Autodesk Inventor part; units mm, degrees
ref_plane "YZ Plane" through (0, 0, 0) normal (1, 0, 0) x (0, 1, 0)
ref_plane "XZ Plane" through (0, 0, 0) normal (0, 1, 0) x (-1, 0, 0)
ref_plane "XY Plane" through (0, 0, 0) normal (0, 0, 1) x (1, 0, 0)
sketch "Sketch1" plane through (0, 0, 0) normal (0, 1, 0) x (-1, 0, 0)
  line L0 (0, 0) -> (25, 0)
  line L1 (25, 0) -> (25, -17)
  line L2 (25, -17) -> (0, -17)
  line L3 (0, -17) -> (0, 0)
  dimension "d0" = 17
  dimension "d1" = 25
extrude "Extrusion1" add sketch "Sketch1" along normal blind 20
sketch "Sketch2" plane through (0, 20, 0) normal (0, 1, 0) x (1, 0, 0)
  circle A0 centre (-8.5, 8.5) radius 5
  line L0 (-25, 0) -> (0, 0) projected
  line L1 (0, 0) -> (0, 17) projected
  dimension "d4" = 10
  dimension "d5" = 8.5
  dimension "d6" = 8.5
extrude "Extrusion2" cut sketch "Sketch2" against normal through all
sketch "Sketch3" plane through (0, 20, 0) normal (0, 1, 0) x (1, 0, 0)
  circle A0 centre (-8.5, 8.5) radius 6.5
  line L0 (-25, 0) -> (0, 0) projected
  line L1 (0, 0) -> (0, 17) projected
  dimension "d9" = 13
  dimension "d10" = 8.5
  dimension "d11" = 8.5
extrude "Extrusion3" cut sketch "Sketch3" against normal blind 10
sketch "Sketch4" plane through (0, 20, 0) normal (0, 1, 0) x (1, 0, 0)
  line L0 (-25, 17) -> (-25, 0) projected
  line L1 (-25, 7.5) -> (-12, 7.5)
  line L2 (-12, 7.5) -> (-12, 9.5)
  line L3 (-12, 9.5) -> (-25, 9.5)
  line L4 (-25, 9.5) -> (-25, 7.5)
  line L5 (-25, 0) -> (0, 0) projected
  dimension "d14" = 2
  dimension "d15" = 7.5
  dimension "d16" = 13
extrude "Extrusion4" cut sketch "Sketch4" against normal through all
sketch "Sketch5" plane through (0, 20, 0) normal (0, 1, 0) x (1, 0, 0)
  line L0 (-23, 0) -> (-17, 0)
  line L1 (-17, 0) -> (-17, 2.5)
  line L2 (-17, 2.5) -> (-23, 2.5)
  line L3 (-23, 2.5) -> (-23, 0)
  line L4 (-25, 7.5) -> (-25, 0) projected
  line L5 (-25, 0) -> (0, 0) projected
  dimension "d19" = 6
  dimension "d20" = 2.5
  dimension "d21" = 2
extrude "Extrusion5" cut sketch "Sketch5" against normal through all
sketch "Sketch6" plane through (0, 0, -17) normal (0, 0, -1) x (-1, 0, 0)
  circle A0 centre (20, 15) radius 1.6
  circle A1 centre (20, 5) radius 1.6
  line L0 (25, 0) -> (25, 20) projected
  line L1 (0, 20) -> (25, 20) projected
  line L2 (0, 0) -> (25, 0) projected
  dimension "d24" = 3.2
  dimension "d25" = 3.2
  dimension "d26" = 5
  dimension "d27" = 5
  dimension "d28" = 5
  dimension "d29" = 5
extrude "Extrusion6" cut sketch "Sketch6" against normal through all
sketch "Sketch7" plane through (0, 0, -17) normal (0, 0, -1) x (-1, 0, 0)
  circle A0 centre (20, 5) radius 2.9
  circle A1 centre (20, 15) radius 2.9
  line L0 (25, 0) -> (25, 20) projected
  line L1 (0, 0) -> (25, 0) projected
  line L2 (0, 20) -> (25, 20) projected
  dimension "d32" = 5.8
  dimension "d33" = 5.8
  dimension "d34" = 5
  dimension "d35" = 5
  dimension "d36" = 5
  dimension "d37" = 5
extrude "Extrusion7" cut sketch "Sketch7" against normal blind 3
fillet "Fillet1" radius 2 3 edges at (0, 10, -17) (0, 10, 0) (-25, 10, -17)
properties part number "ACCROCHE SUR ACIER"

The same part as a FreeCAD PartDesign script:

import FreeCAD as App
import Part
import Sketcher
Q = App.Units.Quantity


def edges_at(feature, points):
    """Names of the edges that pass closest to the given points."""
    edges = feature.Shape.Edges
    near = lambda p: min(range(len(edges)), key=lambda i: edges[i].distToShape(Part.Vertex(*p))[0])
    return sorted({f"Edge{near(p) + 1}" for p in points})

doc = App.newDocument("Part")
body = doc.addObject("PartDesign::Body", "Body")

sketch1 = doc.addObject("Sketcher::SketchObject", "Sketch")
body.addObject(sketch1)
sketch1.AttachmentSupport = (doc.XZ_Plane, [""])
sketch1.MapMode = "FlatFace"
sketch1.addGeometry(Part.LineSegment(App.Vector(-25, 0, 0), App.Vector(0, 0, 0)), False)
sketch1.addGeometry(Part.LineSegment(App.Vector(0, 0, 0), App.Vector(0, -17, 0)), False)
sketch1.addGeometry(Part.LineSegment(App.Vector(0, -17, 0), App.Vector(-25, -17, 0)), False)
sketch1.addGeometry(Part.LineSegment(App.Vector(-25, -17, 0), App.Vector(-25, 0, 0)), False)
sketch1.addConstraint(Sketcher.Constraint("Coincident", 0, 2, 1, 1))
sketch1.addConstraint(Sketcher.Constraint("Coincident", 1, 2, 2, 1))
sketch1.addConstraint(Sketcher.Constraint("Coincident", 2, 2, 3, 1))
sketch1.addConstraint(Sketcher.Constraint("Coincident", 3, 2, 0, 1))
sketch1.addConstraint(Sketcher.Constraint("Horizontal", 0))
sketch1.addConstraint(Sketcher.Constraint("Vertical", 1))
sketch1.addConstraint(Sketcher.Constraint("Horizontal", 2))
sketch1.addConstraint(Sketcher.Constraint("Vertical", 3))
sketch1.addConstraint(Sketcher.Constraint("Coincident", 0, 2, -1, 1))
sketch1.addConstraint(Sketcher.Constraint("DistanceX", 0, 1, 0, 2, Q("25 mm")))
sketch1.addConstraint(Sketcher.Constraint("DistanceY", 1, 2, 1, 1, Q("17 mm")))
pad1 = doc.addObject("PartDesign::Pad", "Pad")
body.addObject(pad1)
pad1.Profile = sketch1
pad1.Length = 20
pad1.Reversed = True

sketch2 = doc.addObject("Sketcher::SketchObject", "Sketch001")
body.addObject(sketch2)
sketch2.AttachmentSupport = (doc.XZ_Plane, [""])
sketch2.MapMode = "FlatFace"
sketch2.AttachmentOffset = App.Placement(App.Vector(0, 0, -20), App.Rotation())
sketch2.addGeometry(Part.Circle(App.Vector(-8, -8, 0), App.Vector(0, 0, 1), 5), False)
sketch2.addConstraint(Sketcher.Constraint("Diameter", 0, Q("10 mm")))
sketch2.addConstraint(Sketcher.Constraint("DistanceX", 0, 3, -1, 1, Q("8.5 mm")))
sketch2.addConstraint(Sketcher.Constraint("DistanceY", 0, 3, -1, 1, Q("8.5 mm")))
pocket1 = doc.addObject("PartDesign::Pocket", "Pocket")
body.addObject(pocket1)
pocket1.Profile = sketch2
pocket1.Type = "ThroughAll"
pocket1.Reversed = True

sketch3 = doc.addObject("Sketcher::SketchObject", "Sketch002")
body.addObject(sketch3)
sketch3.AttachmentSupport = (doc.XZ_Plane, [""])
sketch3.MapMode = "FlatFace"
sketch3.AttachmentOffset = App.Placement(App.Vector(0, 0, -20), App.Rotation())
sketch3.addGeometry(Part.Circle(App.Vector(-8, -8, 0), App.Vector(0, 0, 1), 6), False)
sketch3.addConstraint(Sketcher.Constraint("Diameter", 0, Q("13 mm")))
sketch3.addConstraint(Sketcher.Constraint("DistanceX", 0, 3, -1, 1, Q("8.5 mm")))
sketch3.addConstraint(Sketcher.Constraint("DistanceY", 0, 3, -1, 1, Q("8.5 mm")))
pocket2 = doc.addObject("PartDesign::Pocket", "Pocket001")
body.addObject(pocket2)
pocket2.Profile = sketch3
pocket2.Length = 10
pocket2.Reversed = True

sketch4 = doc.addObject("Sketcher::SketchObject", "Sketch003")
body.addObject(sketch4)
sketch4.AttachmentSupport = (doc.XZ_Plane, [""])
sketch4.MapMode = "FlatFace"
sketch4.AttachmentOffset = App.Placement(App.Vector(0, 0, -20), App.Rotation())
sketch4.addGeometry(Part.LineSegment(App.Vector(-12, -9.5, 0), App.Vector(-25, -9.5, 0)), False)
sketch4.addGeometry(Part.LineSegment(App.Vector(-25, -9.5, 0), App.Vector(-25, -7.5, 0)), False)
sketch4.addGeometry(Part.LineSegment(App.Vector(-25, -7.5, 0), App.Vector(-12, -7.5, 0)), False)
sketch4.addGeometry(Part.LineSegment(App.Vector(-12, -7.5, 0), App.Vector(-12, -9.5, 0)), False)
sketch4.addConstraint(Sketcher.Constraint("Coincident", 0, 2, 1, 1))
sketch4.addConstraint(Sketcher.Constraint("Coincident", 1, 2, 2, 1))
sketch4.addConstraint(Sketcher.Constraint("Coincident", 2, 2, 3, 1))
sketch4.addConstraint(Sketcher.Constraint("Coincident", 3, 2, 0, 1))
sketch4.addConstraint(Sketcher.Constraint("Horizontal", 0))
sketch4.addConstraint(Sketcher.Constraint("Vertical", 1))
sketch4.addConstraint(Sketcher.Constraint("Horizontal", 2))
sketch4.addConstraint(Sketcher.Constraint("Vertical", 3))
sketch4.addConstraint(Sketcher.Constraint("DistanceX", 0, 2, 0, 1, Q("13 mm")))
sketch4.addConstraint(Sketcher.Constraint("DistanceY", 1, 1, 1, 2, Q("2 mm")))
sketch4.addConstraint(Sketcher.Constraint("DistanceY", 1, 2, -1, 1, Q("7.5 mm")))
sketch4.addConstraint(Sketcher.Constraint("DistanceX", 0, 2, -1, 1, Q("25 mm")))
pocket3 = doc.addObject("PartDesign::Pocket", "Pocket002")
body.addObject(pocket3)
pocket3.Profile = sketch4
pocket3.Type = "ThroughAll"
pocket3.Reversed = True

sketch5 = doc.addObject("Sketcher::SketchObject", "Sketch004")
body.addObject(sketch5)
sketch5.AttachmentSupport = (doc.XZ_Plane, [""])
sketch5.MapMode = "FlatFace"
sketch5.AttachmentOffset = App.Placement(App.Vector(0, 0, -20), App.Rotation())
sketch5.addGeometry(Part.LineSegment(App.Vector(-23, -2.5, 0), App.Vector(-23, 0, 0)), False)
sketch5.addGeometry(Part.LineSegment(App.Vector(-23, 0, 0), App.Vector(-17, 0, 0)), False)
sketch5.addGeometry(Part.LineSegment(App.Vector(-17, 0, 0), App.Vector(-17, -2.5, 0)), False)
sketch5.addGeometry(Part.LineSegment(App.Vector(-17, -2.5, 0), App.Vector(-23, -2.5, 0)), False)
sketch5.addConstraint(Sketcher.Constraint("Coincident", 0, 2, 1, 1))
sketch5.addConstraint(Sketcher.Constraint("Coincident", 1, 2, 2, 1))
sketch5.addConstraint(Sketcher.Constraint("Coincident", 2, 2, 3, 1))
sketch5.addConstraint(Sketcher.Constraint("Coincident", 3, 2, 0, 1))
sketch5.addConstraint(Sketcher.Constraint("Vertical", 0))
sketch5.addConstraint(Sketcher.Constraint("Horizontal", 1))
sketch5.addConstraint(Sketcher.Constraint("Vertical", 2))
sketch5.addConstraint(Sketcher.Constraint("Horizontal", 3))
sketch5.addConstraint(Sketcher.Constraint("PointOnObject", 0, 2, -1))
sketch5.addConstraint(Sketcher.Constraint("DistanceX", 1, 1, 1, 2, Q("6 mm")))
sketch5.addConstraint(Sketcher.Constraint("DistanceY", 0, 1, 0, 2, Q("2.5 mm")))
sketch5.addConstraint(Sketcher.Constraint("DistanceX", 0, 2, -1, 1, Q("23 mm")))
pocket4 = doc.addObject("PartDesign::Pocket", "Pocket003")
body.addObject(pocket4)
pocket4.Profile = sketch5
pocket4.Type = "ThroughAll"
pocket4.Reversed = True

sketch6 = doc.addObject("Sketcher::SketchObject", "Sketch005")
body.addObject(sketch6)
sketch6.AttachmentSupport = (doc.XY_Plane, [""])
sketch6.MapMode = "FlatFace"
sketch6.AttachmentOffset = App.Placement(App.Vector(0, 0, -17), App.Rotation())
sketch6.addGeometry(Part.Circle(App.Vector(-20, 15, 0), App.Vector(0, 0, 1), 1.6), False)
sketch6.addGeometry(Part.Circle(App.Vector(-20, 5, 0), App.Vector(0, 0, 1), 1.6), False)
sketch6.addConstraint(Sketcher.Constraint("Equal", 0, 1))
sketch6.addConstraint(Sketcher.Constraint("Vertical", 0, 3, 1, 3))
sketch6.addConstraint(Sketcher.Constraint("Diameter", 0, Q("3.2 mm")))
sketch6.addConstraint(Sketcher.Constraint("DistanceY", -1, 1, 1, 3, Q("5 mm")))
sketch6.addConstraint(Sketcher.Constraint("DistanceX", 0, 3, -1, 1, Q("20 mm")))
sketch6.addConstraint(Sketcher.Constraint("DistanceY", -1, 1, 0, 3, Q("15 mm")))
pocket5 = doc.addObject("PartDesign::Pocket", "Pocket004")
body.addObject(pocket5)
pocket5.Profile = sketch6
pocket5.Type = "ThroughAll"
pocket5.Reversed = True

sketch7 = doc.addObject("Sketcher::SketchObject", "Sketch006")
body.addObject(sketch7)
sketch7.AttachmentSupport = (doc.XY_Plane, [""])
sketch7.MapMode = "FlatFace"
sketch7.AttachmentOffset = App.Placement(App.Vector(0, 0, -17), App.Rotation())
sketch7.addGeometry(Part.Circle(App.Vector(-20, 5, 0), App.Vector(0, 0, 1), 2.9), False)
sketch7.addGeometry(Part.Circle(App.Vector(-20, 15, 0), App.Vector(0, 0, 1), 2.9), False)
sketch7.addConstraint(Sketcher.Constraint("Equal", 0, 1))
sketch7.addConstraint(Sketcher.Constraint("Vertical", 0, 3, 1, 3))
sketch7.addConstraint(Sketcher.Constraint("Diameter", 0, Q("5.8 mm")))
sketch7.addConstraint(Sketcher.Constraint("DistanceY", -1, 1, 0, 3, Q("5 mm")))
sketch7.addConstraint(Sketcher.Constraint("DistanceX", 0, 3, -1, 1, Q("20 mm")))
sketch7.addConstraint(Sketcher.Constraint("DistanceY", -1, 1, 1, 3, Q("15 mm")))
pocket6 = doc.addObject("PartDesign::Pocket", "Pocket005")
body.addObject(pocket6)
pocket6.Profile = sketch7
pocket6.Length = 3
pocket6.Reversed = True
doc.recompute()

fillet = doc.addObject("PartDesign::Fillet", "Fillet")
body.addObject(fillet)
fillet.Base = (pocket6, edges_at(pocket6, [(0, 10, -17), (0, 10, 0), (-25, 10, -17)]))
fillet.Radius = 2

doc.recompute()
